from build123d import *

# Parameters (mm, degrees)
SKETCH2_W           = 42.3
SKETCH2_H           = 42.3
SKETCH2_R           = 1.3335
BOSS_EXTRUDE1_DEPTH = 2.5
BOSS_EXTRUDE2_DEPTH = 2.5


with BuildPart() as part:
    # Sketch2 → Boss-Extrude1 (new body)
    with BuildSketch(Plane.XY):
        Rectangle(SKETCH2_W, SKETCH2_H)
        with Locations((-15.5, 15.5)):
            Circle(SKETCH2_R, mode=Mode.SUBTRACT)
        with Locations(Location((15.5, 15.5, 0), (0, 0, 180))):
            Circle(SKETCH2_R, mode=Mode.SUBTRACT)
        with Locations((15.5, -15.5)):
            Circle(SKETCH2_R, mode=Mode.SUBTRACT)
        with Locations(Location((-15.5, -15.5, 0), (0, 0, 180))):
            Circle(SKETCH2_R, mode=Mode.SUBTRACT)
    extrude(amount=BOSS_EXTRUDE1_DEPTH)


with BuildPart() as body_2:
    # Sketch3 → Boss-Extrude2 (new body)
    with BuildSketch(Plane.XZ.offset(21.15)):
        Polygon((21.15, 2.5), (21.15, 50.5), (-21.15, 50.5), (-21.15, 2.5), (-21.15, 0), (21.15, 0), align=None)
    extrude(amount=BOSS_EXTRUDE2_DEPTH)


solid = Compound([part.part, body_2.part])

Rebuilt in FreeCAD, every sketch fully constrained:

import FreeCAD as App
import Part
import Sketcher
Q = App.Units.Quantity


def add_polygon(sketch, points):
    """Adds a closed chain of lines whose ends are joined by coincident constraints."""
    first, n = sketch.GeometryCount, len(points)
    for a, b in zip(points, points[1:] + points[:1]):
        sketch.addGeometry(Part.LineSegment(App.Vector(*a, 0), App.Vector(*b, 0)), False)
    for i in range(n):
        sketch.addConstraint(Sketcher.Constraint("Coincident", first + i, 2, first + (i + 1) % n, 1))

doc = App.newDocument("Part")
params = doc.addObject("Spreadsheet::Sheet", "Params")
for row, (alias, value) in enumerate([
    ("sketch1_width", "42.3 mm"),
    ("pad1_length", "2.5 mm"),
    ("sketch2_width", "42.3 mm"),
    ("sketch2_height", "50.5 mm"),
    ("pad2_length", "2.5 mm"),
], start=1):
    params.set(f"A{row}", alias)
    params.set(f"B{row}", "=" + value)
    params.setAlias(f"B{row}", alias)

body = doc.addObject("PartDesign::Body", "Body")

# Sketch on XY plane
sketch1 = body.newObject("Sketcher::SketchObject", "Sketch")
sketch1.AttachmentSupport = (doc.getObject("XY_Plane"), [""])
sketch1.MapMode = "FlatFace"
add_polygon(sketch1, [(-21.15, 21.15), (-21.15, -21.15), (21.15, -21.15), (21.15, 21.15)])  # lines 0-3
sketch1.addGeometry(Part.Circle(App.Vector(-15.5, -15.5, 0), App.Vector(0, 0, 1), 1.3335), False)  # 4
sketch1.addGeometry(Part.Circle(App.Vector(15.5, -15.5, 0), App.Vector(0, 0, 1), 1.3335), False)  # 5
sketch1.addGeometry(Part.Circle(App.Vector(-15.5, 15.5, 0), App.Vector(0, 0, 1), 1.3335), False)  # 6
sketch1.addGeometry(Part.Circle(App.Vector(15.5, 15.5, 0), App.Vector(0, 0, 1), 1.3335), False)  # 7
sketch1.addConstraint(Sketcher.Constraint("Vertical", 0))
sketch1.addConstraint(Sketcher.Constraint("Horizontal", 1))
sketch1.addConstraint(Sketcher.Constraint("Vertical", 2))
sketch1.addConstraint(Sketcher.Constraint("Horizontal", 3))
sketch1.addConstraint(Sketcher.Constraint("Equal", 4, 5))
sketch1.addConstraint(Sketcher.Constraint("Equal", 5, 6))
sketch1.addConstraint(Sketcher.Constraint("Equal", 6, 7))
sketch1.addConstraint(Sketcher.Constraint("Symmetric", 5, 3, 6, 3, -1, 1))
sketch1.addConstraint(Sketcher.Constraint("Symmetric", 4, 3, 7, 3, -1, 1))
sketch1.addConstraint(Sketcher.Constraint("Symmetric", 0, 2, 2, 2, -1, 1))
sketch1.addConstraint(Sketcher.Constraint("Symmetric", 4, 3, 5, 3, -2))
sketch1.addConstraint(Sketcher.Constraint("Equal", 3, 0))
sketch1.addConstraint(Sketcher.Constraint("Diameter", 4, Q("2.667 mm")))
sketch1.addConstraint(Sketcher.Constraint("DistanceX", 1, 1, 1, 2, Q("42.3 mm")))
sketch1.addConstraint(Sketcher.Constraint("DistanceX", 4, 3, 5, 3, Q("31 mm")))
sketch1.addConstraint(Sketcher.Constraint("DistanceY", 4, 3, 6, 3, Q("31 mm")))
sketch1.setExpression("Constraints[17]", "Params.sketch1_width")
pad1 = body.newObject("PartDesign::Pad", "Pad")
pad1.Profile = sketch1
pad1.setExpression("Length", "Params.pad1_length")
body2 = doc.addObject("PartDesign::Body", "Body001")

# Sketch on XZ plane
sketch2 = body2.newObject("Sketcher::SketchObject", "Sketch001")
sketch2.AttachmentSupport = (doc.getObject("XZ_Plane001"), [""])
sketch2.MapMode = "FlatFace"
sketch2.AttachmentOffset = App.Placement(App.Vector(0, 0, 21.15), App.Rotation())
add_polygon(sketch2, [(21.15, 50.5), (-21.15, 50.5), (-21.15, 0), (21.15, 0)])  # lines 0-3
sketch2.addConstraint(Sketcher.Constraint("Horizontal", 0))
sketch2.addConstraint(Sketcher.Constraint("Vertical", 1))
sketch2.addConstraint(Sketcher.Constraint("Horizontal", 2))
sketch2.addConstraint(Sketcher.Constraint("Vertical", 3))
sketch2.addConstraint(Sketcher.Constraint("Symmetric", 1, 2, 2, 2, -1, 1))
sketch2.addConstraint(Sketcher.Constraint("DistanceX", 0, 2, 0, 1, Q("42.3 mm")))
sketch2.addConstraint(Sketcher.Constraint("DistanceY", 1, 2, 1, 1, Q("50.5 mm")))
sketch2.setExpression("Constraints[9]", "Params.sketch2_width")
sketch2.setExpression("Constraints[10]", "Params.sketch2_height")
pad2 = body2.newObject("PartDesign::Pad", "Pad001")
pad2.Profile = sketch2
pad2.setExpression("Length", "Params.pad2_length")

doc.recompute()
